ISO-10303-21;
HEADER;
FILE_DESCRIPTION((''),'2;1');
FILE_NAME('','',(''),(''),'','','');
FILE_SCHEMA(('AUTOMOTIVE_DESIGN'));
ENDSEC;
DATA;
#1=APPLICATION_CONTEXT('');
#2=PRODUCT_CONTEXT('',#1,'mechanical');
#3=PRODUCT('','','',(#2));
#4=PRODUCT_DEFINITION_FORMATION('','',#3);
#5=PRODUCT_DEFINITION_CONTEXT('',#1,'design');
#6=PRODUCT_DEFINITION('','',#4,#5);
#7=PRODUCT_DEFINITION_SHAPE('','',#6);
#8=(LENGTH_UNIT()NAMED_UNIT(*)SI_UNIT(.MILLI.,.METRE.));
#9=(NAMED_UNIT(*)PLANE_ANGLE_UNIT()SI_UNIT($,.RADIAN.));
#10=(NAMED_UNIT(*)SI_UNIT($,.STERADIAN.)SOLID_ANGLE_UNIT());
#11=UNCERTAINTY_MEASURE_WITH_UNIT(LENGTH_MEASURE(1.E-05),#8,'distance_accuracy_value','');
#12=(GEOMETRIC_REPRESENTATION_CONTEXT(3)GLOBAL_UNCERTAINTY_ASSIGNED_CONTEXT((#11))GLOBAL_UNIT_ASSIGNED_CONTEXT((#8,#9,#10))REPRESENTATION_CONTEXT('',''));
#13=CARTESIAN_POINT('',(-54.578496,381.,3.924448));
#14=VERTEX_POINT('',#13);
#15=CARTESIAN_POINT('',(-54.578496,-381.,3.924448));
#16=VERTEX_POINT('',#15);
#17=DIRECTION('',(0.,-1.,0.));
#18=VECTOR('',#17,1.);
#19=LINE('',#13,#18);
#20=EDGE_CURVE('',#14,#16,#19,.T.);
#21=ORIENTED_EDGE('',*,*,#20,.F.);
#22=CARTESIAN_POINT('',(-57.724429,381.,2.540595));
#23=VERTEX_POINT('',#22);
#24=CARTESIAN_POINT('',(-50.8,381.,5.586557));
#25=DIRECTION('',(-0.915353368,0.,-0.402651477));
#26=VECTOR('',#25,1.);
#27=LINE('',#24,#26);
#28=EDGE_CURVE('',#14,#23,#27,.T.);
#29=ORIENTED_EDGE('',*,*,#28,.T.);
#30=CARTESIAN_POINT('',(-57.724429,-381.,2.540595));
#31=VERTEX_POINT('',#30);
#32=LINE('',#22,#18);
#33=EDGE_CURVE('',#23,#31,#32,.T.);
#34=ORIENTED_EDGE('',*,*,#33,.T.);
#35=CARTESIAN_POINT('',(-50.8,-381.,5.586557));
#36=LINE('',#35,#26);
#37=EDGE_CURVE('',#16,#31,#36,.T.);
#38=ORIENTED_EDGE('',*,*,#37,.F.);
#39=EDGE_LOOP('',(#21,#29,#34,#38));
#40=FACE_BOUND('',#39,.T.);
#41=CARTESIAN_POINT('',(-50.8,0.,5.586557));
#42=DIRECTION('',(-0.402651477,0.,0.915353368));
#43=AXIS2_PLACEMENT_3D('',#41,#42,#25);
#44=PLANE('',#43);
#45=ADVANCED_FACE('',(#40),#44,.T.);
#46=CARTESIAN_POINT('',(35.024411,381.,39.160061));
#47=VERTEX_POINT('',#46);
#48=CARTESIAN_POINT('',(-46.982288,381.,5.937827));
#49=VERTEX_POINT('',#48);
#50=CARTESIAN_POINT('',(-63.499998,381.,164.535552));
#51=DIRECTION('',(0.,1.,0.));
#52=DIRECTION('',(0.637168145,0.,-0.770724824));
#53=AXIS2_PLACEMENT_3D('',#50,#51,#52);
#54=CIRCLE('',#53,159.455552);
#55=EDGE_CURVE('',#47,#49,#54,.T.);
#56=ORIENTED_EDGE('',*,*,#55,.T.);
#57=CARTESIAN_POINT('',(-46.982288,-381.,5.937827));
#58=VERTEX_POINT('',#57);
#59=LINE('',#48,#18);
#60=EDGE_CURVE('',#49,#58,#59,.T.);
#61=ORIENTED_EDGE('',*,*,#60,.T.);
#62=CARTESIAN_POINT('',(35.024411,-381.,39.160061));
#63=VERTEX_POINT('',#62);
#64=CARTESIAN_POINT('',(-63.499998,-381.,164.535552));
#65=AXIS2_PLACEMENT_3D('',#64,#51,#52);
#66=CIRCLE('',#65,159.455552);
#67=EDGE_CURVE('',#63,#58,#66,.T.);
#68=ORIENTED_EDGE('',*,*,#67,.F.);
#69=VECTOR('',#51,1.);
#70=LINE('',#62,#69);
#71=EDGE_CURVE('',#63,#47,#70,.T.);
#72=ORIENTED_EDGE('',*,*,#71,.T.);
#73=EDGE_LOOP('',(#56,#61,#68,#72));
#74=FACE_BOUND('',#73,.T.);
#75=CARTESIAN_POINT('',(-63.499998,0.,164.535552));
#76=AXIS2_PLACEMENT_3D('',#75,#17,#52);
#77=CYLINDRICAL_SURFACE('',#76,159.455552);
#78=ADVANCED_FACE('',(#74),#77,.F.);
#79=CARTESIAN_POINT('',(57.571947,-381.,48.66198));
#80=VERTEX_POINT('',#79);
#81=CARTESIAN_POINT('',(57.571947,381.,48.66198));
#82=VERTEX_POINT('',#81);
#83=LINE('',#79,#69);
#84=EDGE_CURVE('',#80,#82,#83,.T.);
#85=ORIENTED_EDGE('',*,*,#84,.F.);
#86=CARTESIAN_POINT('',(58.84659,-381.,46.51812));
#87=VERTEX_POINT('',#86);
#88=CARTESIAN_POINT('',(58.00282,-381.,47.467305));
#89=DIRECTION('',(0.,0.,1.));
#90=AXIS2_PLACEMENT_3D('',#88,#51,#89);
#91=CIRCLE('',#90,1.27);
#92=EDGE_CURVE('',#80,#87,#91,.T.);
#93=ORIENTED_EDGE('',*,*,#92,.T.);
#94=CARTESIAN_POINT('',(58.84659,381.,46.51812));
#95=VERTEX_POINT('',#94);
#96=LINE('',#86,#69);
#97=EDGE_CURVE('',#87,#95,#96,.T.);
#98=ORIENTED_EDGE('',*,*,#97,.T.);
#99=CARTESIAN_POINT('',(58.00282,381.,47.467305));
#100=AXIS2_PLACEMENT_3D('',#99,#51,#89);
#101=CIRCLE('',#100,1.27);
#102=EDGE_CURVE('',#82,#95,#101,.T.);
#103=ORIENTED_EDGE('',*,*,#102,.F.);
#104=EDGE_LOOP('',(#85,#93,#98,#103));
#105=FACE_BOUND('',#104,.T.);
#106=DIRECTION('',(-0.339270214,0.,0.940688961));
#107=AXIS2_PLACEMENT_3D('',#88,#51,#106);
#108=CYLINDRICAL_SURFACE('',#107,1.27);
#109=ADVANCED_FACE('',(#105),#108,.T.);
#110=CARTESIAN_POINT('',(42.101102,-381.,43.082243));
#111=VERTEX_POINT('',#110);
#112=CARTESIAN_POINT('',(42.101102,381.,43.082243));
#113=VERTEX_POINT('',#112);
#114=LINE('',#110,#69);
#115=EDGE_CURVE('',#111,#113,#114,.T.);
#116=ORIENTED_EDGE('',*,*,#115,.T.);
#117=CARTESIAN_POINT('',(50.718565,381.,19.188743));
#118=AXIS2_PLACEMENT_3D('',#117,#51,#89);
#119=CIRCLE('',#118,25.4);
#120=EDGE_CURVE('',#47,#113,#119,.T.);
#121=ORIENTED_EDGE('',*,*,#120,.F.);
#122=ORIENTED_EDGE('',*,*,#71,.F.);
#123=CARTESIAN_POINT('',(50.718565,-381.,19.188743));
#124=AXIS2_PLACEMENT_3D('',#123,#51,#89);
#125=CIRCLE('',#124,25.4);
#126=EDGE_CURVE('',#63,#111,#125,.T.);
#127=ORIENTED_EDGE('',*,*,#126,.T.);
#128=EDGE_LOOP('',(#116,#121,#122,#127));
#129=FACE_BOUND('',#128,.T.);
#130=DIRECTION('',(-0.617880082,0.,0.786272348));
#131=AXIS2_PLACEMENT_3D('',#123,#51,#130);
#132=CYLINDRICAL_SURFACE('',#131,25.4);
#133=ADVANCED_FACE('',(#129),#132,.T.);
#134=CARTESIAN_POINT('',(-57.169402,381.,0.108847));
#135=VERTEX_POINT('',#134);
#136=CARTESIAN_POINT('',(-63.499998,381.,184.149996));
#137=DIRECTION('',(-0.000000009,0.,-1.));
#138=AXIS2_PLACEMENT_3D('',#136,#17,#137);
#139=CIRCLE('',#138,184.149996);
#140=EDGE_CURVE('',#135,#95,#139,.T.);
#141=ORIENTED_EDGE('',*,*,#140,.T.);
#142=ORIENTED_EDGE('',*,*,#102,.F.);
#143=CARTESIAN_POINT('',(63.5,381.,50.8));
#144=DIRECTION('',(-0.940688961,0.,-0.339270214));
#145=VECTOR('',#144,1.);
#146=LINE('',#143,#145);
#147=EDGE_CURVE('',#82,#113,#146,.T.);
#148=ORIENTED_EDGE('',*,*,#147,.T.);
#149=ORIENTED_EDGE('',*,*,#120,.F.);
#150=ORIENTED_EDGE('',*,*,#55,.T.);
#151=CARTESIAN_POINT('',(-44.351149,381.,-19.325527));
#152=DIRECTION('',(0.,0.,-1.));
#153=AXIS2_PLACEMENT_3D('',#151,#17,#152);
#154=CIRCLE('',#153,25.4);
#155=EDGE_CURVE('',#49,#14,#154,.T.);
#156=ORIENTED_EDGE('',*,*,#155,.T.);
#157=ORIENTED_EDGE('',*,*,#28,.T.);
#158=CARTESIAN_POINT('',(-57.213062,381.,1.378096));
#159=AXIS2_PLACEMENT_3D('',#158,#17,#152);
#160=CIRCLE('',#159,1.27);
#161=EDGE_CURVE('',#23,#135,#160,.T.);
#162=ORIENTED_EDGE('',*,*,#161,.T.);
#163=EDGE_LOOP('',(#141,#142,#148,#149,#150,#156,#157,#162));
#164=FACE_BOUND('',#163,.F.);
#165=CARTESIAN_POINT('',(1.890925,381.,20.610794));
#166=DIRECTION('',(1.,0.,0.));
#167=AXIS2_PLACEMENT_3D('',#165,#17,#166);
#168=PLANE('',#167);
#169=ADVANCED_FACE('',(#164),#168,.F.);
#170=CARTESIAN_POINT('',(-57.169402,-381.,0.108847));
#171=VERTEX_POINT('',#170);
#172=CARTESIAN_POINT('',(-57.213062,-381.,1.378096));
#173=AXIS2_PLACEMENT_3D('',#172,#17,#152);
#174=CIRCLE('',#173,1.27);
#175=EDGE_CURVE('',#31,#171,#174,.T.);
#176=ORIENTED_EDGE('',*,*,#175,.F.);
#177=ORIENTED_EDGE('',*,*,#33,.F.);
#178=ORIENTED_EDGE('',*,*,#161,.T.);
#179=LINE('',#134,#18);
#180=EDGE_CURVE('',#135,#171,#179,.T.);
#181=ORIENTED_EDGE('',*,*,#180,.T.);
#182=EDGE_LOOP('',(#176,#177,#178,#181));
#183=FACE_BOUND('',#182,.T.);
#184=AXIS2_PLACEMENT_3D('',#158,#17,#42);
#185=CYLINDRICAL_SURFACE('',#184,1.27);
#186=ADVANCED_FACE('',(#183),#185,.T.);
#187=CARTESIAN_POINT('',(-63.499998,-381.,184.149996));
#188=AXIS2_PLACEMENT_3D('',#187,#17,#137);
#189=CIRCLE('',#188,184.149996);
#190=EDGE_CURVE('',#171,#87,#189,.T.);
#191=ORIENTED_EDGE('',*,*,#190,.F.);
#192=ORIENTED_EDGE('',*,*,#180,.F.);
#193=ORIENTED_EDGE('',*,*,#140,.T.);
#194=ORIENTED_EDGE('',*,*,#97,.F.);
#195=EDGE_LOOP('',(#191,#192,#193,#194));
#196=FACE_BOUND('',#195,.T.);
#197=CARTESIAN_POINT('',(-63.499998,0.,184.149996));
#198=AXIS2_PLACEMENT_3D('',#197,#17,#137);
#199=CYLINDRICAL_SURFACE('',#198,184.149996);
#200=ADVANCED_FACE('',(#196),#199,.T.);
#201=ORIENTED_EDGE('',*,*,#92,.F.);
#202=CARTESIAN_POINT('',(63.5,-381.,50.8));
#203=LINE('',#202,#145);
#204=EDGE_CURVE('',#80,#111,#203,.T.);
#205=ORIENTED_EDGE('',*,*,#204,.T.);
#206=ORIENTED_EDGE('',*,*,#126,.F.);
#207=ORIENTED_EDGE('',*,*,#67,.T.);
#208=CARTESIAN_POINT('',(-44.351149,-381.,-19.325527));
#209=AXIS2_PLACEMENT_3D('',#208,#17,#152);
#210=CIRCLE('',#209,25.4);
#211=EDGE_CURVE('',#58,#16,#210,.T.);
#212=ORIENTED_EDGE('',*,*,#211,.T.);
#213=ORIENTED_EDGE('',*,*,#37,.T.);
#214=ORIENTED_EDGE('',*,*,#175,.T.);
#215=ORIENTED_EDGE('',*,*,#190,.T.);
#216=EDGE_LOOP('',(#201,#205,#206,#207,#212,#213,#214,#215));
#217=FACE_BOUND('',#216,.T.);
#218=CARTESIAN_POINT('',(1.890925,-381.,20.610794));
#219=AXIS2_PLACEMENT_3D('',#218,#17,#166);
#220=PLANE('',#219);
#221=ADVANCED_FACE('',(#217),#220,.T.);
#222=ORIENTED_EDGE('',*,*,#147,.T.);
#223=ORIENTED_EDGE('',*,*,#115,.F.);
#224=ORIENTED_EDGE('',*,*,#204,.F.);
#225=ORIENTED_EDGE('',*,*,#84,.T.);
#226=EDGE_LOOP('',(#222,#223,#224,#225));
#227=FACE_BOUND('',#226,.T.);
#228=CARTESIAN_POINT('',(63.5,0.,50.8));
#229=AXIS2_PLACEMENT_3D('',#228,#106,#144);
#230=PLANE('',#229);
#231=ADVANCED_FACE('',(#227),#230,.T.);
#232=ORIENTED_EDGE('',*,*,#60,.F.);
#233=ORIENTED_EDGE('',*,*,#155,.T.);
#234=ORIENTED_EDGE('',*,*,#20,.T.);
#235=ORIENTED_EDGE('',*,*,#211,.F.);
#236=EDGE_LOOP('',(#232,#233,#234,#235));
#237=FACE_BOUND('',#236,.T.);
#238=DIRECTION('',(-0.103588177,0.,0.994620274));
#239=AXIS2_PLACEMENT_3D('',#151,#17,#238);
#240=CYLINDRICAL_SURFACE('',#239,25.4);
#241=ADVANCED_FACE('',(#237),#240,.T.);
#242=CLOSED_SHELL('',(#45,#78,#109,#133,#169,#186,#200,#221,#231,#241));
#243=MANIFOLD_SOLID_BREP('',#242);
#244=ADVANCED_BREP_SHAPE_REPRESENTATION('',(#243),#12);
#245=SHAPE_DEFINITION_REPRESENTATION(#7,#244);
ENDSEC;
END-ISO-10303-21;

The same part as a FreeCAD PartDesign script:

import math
import FreeCAD as App
import Part
import Sketcher

V = App.Vector
Q = App.Units.Quantity


def edges_at(feature, points):
    """Names of the edges that pass closest to the given points."""
    edges = feature.Shape.Edges
    near = lambda p: min(range(len(edges)), key=lambda i: edges[i].distToShape(Part.Vertex(*p))[0])
    return sorted({f"Edge{near(p) + 1}" for p in points})

doc = App.newDocument("Part")
body = doc.addObject("PartDesign::Body", "Body")

# Sketch on XZ plane
sketch1 = body.newObject("Sketcher::SketchObject", "Sketch")
sketch1.AttachmentSupport = (doc.getObject("XZ_Plane"), [""])
sketch1.MapMode = "FlatFace"
sketch1.addGeometry([
    Part.ArcOfCircle(Part.Circle(V(-63, 165, 0), V(0, 0, 1), 159), math.radians(-85), math.radians(-50)),
    Part.LineSegment(V(-51, 6, 0), V(-64, 0, 0)),
    Part.ArcOfCircle(Part.Circle(V(-63, 184, 0), V(0, 0, 1), 184), math.radians(-90), math.radians(-46)),
    Part.LineSegment(V(64, 51, 0), V(38, 42, 0)),
], False)
sketch1.addConstraint([
    Sketcher.Constraint("Coincident", 0, 1, 1, 1),
    Sketcher.Constraint("Coincident", 1, 2, 2, 1),
    Sketcher.Constraint("Coincident", 2, 2, 3, 1),
    Sketcher.Constraint("Coincident", 3, 2, 0, 2),
    Sketcher.Constraint("PointOnObject", 1, 2, -1),
    Sketcher.Constraint("Vertical", 0, 3, 2, 3),
    Sketcher.Constraint("Vertical", 2, 3, 1, 2),
    Sketcher.Constraint("Radius", 2, Q("7.2499998 in")),
    Sketcher.Constraint("DistanceX", 0, 1, -1, 1, Q("2 in")),
    Sketcher.Constraint("DistanceY", -1, 1, 2, 2, Q("2 in")),
    Sketcher.Constraint("DistanceX", 3, 2, 2, 2, Q("1 in")),
    Sketcher.Constraint("DistanceX", 0, 3, -1, 1, Q("2.4999999 in")),
    Sketcher.Constraint("Radius", 0, 159.455552),
    Sketcher.Constraint("DistanceY", -1, 1, 3, 2, 41.6392),
])
pad1 = body.newObject("PartDesign::Pad", "Pad")
pad1.Profile = sketch1
pad1.Length = Q("30 in")
pad1.Midplane = True
doc.recompute()

fillet = body.newObject("PartDesign::Fillet", "Fillet")
fillet.Base = (pad1, edges_at(pad1, [(38.1, 0, 41.639), (-50.8, 0, 5.587)]))
fillet.Radius = Q("1 in")
doc.recompute()

fillet2 = body.newObject("PartDesign::Fillet", "Fillet001")
fillet2.Base = (fillet, edges_at(fillet, [(-63.5, 0, 0), (63.5, 0, 50.8)]))
fillet2.Radius = Q("0.05 in")

doc.recompute()
